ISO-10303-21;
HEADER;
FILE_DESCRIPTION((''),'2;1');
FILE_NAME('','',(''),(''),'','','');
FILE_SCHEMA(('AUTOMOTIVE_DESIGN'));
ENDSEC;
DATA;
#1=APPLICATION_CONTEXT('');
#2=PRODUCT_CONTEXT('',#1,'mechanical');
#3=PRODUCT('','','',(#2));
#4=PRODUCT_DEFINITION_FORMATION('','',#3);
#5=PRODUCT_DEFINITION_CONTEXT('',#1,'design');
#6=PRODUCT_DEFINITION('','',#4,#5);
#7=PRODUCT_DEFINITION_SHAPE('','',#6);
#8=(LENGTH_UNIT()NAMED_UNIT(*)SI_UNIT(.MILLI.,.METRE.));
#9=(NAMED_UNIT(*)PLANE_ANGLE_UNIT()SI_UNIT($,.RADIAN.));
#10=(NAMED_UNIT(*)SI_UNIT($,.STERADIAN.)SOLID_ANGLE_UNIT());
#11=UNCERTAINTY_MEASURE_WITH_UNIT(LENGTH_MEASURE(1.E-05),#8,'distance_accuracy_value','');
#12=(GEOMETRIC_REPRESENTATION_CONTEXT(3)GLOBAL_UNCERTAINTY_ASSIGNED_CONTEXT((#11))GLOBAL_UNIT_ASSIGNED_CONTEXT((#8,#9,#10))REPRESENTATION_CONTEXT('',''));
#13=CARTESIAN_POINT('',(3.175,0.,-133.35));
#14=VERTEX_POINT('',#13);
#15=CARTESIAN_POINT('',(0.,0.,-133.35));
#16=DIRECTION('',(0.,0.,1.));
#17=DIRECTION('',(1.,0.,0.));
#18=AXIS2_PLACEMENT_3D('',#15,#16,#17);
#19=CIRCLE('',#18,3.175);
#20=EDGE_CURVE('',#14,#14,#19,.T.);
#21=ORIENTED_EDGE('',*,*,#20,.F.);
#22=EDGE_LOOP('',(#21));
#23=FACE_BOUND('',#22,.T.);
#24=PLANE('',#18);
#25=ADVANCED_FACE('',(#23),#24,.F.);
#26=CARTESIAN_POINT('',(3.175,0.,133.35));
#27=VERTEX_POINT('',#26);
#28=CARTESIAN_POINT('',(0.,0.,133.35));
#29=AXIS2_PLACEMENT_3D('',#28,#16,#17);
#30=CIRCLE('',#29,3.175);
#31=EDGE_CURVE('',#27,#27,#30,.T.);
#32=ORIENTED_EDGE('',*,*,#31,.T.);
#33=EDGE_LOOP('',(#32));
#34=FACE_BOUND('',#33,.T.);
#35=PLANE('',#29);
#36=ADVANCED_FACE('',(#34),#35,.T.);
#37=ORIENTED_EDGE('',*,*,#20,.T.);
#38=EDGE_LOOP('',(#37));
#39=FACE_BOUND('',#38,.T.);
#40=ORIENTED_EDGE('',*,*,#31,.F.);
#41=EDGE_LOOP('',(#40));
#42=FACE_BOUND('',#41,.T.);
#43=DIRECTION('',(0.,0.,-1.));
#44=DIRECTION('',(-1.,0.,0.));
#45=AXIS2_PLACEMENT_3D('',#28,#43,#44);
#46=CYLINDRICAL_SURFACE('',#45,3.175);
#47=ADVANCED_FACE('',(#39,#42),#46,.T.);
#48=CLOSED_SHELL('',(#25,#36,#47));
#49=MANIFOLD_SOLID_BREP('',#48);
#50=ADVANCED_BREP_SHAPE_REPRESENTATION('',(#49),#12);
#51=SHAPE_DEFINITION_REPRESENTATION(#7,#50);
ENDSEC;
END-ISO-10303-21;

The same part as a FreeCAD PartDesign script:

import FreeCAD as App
import Part
import Sketcher
from FreeCAD import Vector
Q = App.Units.Quantity

doc = App.newDocument("Part")
params = doc.addObject("Spreadsheet::Sheet", "Params")
for row, (alias, value) in enumerate([
    ("sketch1_diameter", "0.25 in"),
    ("pad1_length", "10.5 in"),
], start=1):
    params.set(f"A{row}", alias)
    params.set(f"B{row}", "=" + value)
    params.setAlias(f"B{row}", alias)

body = doc.addObject("PartDesign::Body", "Body")

sketch1 = doc.addObject("Sketcher::SketchObject", "Sketch")
body.addObject(sketch1)
sketch1.AttachmentSupport = (doc.XY_Plane, [""])
sketch1.MapMode = "FlatFace"
sketch1.addGeometry(Part.Circle(Vector(0, 0, 0), Vector(0, 0, 1), 3.2), False)
sketch1.addConstraint(Sketcher.Constraint("Coincident", 0, 3, -1, 1))
sketch1.addConstraint(Sketcher.Constraint("Diameter", 0, Q("0.25 in")))
sketch1.setExpression("Constraints[1]", "Params.sketch1_diameter")
pad1 = doc.addObject("PartDesign::Pad", "Pad")
body.addObject(pad1)
pad1.Profile = sketch1
pad1.setExpression("Length", "Params.pad1_length")
pad1.Midplane = True

doc.recompute()
